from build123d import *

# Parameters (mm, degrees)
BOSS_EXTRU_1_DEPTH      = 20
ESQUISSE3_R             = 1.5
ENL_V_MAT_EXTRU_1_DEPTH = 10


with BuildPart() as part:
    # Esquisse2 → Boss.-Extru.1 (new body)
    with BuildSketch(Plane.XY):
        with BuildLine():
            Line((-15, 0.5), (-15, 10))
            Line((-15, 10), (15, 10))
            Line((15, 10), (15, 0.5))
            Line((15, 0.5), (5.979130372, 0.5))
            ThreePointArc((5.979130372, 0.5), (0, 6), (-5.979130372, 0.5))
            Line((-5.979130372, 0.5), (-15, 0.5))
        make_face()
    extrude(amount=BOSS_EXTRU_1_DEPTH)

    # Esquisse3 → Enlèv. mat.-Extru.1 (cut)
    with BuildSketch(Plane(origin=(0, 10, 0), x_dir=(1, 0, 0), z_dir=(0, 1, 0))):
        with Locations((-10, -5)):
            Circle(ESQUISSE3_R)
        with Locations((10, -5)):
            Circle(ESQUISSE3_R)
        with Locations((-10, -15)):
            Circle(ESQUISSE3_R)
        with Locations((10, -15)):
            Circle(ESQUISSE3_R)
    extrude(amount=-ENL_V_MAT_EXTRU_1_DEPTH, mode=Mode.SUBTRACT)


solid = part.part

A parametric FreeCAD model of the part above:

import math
import FreeCAD as App
import Part
import Sketcher

V = App.Vector

doc = App.newDocument("Part")
body = doc.addObject("PartDesign::Body", "Body")

# Sketch on XY plane
sketch1 = doc.addObject("Sketcher::SketchObject", "Sketch")
body.addObject(sketch1)
sketch1.AttachmentSupport = (doc.XY_Plane, [""])
sketch1.MapMode = "FlatFace"
sketch1.addGeometry([
    Part.LineSegment(V(-15, 10, 0), V(-15, 0.5, 0)),  # 0
    Part.LineSegment(V(-15, 0.5, 0), V(-5.97913, 0.5, 0)),  # 1
    Part.ArcOfCircle(Part.Circle(V(0, 0, 0), V(0, 0, 1), 6), math.radians(4.780192), math.radians(175.219808)),  # 2
    Part.LineSegment(V(5.97913, 0.5, 0), V(15, 0.5, 0)),  # 3
    Part.LineSegment(V(15, 0.5, 0), V(15, 10, 0)),  # 4
    Part.LineSegment(V(15, 10, 0), V(-15, 10, 0)),  # 5
], False)
sketch1.addConstraint([
    Sketcher.Constraint("Coincident", 0, 2, 1, 1),
    Sketcher.Constraint("Coincident", 1, 2, 2, 2),
    Sketcher.Constraint("Coincident", 2, 1, 3, 1),
    Sketcher.Constraint("Coincident", 3, 2, 4, 1),
    Sketcher.Constraint("Coincident", 4, 2, 5, 1),
    Sketcher.Constraint("Coincident", 5, 2, 0, 1),
    Sketcher.Constraint("Vertical", 0),
    Sketcher.Constraint("Horizontal", 1),
    Sketcher.Constraint("Horizontal", 3),
    Sketcher.Constraint("Vertical", 4),
    Sketcher.Constraint("Horizontal", 5),
    Sketcher.Constraint("Coincident", 2, 3, -1, 1),
    Sketcher.Constraint("Symmetric", 0, 2, 3, 2, -2),
    Sketcher.Constraint("Radius", 2, 6.0),
    Sketcher.Constraint("DistanceX", 5, 2, 5, 1, 30.0),
    Sketcher.Constraint("DistanceY", 0, 2, 0, 1, 9.5),
    Sketcher.Constraint("DistanceY", -1, 1, 4, 2, 10.0),
])
pad1 = doc.addObject("PartDesign::Pad", "Pad")
body.addObject(pad1)
pad1.Profile = sketch1
pad1.Length = 20

# Sketch on XZ plane
sketch2 = doc.addObject("Sketcher::SketchObject", "Sketch001")
body.addObject(sketch2)
sketch2.AttachmentSupport = (doc.XZ_Plane, [""])
sketch2.MapMode = "FlatFace"
sketch2.AttachmentOffset = App.Placement(V(0, 0, -10), App.Rotation())
sketch2.addGeometry([
    Part.Circle(V(-10, 5, 0), V(0, 0, 1), 1.5),
    Part.Circle(V(10, 5, 0), V(0, 0, 1), 1.5),
    Part.Circle(V(-10, 15, 0), V(0, 0, 1), 1.5),
    Part.Circle(V(10, 15, 0), V(0, 0, 1), 1.5),
], False)
sketch2.addConstraint([
    Sketcher.Constraint("Equal", 0, 1),
    Sketcher.Constraint("Equal", 1, 2),
    Sketcher.Constraint("Equal", 2, 3),
    Sketcher.Constraint("Symmetric", 0, 3, 1, 3, -2),
    Sketcher.Constraint("Symmetric", 2, 3, 3, 3, -2),
    Sketcher.Constraint("Vertical", 0, 3, 2, 3),
    Sketcher.Constraint("Diameter", 0, 3.0),
    Sketcher.Constraint("DistanceX", 0, 3, -1, 1, 10.0),
    Sketcher.Constraint("DistanceY", -1, 1, 0, 3, 5.0),
    Sketcher.Constraint("DistanceY", -1, 1, 2, 3, 15.0),
])
pocket1 = doc.addObject("PartDesign::Pocket", "Pocket")
body.addObject(pocket1)
pocket1.Profile = sketch2
pocket1.Length = 10
pocket1.Reversed = True

doc.recompute()
